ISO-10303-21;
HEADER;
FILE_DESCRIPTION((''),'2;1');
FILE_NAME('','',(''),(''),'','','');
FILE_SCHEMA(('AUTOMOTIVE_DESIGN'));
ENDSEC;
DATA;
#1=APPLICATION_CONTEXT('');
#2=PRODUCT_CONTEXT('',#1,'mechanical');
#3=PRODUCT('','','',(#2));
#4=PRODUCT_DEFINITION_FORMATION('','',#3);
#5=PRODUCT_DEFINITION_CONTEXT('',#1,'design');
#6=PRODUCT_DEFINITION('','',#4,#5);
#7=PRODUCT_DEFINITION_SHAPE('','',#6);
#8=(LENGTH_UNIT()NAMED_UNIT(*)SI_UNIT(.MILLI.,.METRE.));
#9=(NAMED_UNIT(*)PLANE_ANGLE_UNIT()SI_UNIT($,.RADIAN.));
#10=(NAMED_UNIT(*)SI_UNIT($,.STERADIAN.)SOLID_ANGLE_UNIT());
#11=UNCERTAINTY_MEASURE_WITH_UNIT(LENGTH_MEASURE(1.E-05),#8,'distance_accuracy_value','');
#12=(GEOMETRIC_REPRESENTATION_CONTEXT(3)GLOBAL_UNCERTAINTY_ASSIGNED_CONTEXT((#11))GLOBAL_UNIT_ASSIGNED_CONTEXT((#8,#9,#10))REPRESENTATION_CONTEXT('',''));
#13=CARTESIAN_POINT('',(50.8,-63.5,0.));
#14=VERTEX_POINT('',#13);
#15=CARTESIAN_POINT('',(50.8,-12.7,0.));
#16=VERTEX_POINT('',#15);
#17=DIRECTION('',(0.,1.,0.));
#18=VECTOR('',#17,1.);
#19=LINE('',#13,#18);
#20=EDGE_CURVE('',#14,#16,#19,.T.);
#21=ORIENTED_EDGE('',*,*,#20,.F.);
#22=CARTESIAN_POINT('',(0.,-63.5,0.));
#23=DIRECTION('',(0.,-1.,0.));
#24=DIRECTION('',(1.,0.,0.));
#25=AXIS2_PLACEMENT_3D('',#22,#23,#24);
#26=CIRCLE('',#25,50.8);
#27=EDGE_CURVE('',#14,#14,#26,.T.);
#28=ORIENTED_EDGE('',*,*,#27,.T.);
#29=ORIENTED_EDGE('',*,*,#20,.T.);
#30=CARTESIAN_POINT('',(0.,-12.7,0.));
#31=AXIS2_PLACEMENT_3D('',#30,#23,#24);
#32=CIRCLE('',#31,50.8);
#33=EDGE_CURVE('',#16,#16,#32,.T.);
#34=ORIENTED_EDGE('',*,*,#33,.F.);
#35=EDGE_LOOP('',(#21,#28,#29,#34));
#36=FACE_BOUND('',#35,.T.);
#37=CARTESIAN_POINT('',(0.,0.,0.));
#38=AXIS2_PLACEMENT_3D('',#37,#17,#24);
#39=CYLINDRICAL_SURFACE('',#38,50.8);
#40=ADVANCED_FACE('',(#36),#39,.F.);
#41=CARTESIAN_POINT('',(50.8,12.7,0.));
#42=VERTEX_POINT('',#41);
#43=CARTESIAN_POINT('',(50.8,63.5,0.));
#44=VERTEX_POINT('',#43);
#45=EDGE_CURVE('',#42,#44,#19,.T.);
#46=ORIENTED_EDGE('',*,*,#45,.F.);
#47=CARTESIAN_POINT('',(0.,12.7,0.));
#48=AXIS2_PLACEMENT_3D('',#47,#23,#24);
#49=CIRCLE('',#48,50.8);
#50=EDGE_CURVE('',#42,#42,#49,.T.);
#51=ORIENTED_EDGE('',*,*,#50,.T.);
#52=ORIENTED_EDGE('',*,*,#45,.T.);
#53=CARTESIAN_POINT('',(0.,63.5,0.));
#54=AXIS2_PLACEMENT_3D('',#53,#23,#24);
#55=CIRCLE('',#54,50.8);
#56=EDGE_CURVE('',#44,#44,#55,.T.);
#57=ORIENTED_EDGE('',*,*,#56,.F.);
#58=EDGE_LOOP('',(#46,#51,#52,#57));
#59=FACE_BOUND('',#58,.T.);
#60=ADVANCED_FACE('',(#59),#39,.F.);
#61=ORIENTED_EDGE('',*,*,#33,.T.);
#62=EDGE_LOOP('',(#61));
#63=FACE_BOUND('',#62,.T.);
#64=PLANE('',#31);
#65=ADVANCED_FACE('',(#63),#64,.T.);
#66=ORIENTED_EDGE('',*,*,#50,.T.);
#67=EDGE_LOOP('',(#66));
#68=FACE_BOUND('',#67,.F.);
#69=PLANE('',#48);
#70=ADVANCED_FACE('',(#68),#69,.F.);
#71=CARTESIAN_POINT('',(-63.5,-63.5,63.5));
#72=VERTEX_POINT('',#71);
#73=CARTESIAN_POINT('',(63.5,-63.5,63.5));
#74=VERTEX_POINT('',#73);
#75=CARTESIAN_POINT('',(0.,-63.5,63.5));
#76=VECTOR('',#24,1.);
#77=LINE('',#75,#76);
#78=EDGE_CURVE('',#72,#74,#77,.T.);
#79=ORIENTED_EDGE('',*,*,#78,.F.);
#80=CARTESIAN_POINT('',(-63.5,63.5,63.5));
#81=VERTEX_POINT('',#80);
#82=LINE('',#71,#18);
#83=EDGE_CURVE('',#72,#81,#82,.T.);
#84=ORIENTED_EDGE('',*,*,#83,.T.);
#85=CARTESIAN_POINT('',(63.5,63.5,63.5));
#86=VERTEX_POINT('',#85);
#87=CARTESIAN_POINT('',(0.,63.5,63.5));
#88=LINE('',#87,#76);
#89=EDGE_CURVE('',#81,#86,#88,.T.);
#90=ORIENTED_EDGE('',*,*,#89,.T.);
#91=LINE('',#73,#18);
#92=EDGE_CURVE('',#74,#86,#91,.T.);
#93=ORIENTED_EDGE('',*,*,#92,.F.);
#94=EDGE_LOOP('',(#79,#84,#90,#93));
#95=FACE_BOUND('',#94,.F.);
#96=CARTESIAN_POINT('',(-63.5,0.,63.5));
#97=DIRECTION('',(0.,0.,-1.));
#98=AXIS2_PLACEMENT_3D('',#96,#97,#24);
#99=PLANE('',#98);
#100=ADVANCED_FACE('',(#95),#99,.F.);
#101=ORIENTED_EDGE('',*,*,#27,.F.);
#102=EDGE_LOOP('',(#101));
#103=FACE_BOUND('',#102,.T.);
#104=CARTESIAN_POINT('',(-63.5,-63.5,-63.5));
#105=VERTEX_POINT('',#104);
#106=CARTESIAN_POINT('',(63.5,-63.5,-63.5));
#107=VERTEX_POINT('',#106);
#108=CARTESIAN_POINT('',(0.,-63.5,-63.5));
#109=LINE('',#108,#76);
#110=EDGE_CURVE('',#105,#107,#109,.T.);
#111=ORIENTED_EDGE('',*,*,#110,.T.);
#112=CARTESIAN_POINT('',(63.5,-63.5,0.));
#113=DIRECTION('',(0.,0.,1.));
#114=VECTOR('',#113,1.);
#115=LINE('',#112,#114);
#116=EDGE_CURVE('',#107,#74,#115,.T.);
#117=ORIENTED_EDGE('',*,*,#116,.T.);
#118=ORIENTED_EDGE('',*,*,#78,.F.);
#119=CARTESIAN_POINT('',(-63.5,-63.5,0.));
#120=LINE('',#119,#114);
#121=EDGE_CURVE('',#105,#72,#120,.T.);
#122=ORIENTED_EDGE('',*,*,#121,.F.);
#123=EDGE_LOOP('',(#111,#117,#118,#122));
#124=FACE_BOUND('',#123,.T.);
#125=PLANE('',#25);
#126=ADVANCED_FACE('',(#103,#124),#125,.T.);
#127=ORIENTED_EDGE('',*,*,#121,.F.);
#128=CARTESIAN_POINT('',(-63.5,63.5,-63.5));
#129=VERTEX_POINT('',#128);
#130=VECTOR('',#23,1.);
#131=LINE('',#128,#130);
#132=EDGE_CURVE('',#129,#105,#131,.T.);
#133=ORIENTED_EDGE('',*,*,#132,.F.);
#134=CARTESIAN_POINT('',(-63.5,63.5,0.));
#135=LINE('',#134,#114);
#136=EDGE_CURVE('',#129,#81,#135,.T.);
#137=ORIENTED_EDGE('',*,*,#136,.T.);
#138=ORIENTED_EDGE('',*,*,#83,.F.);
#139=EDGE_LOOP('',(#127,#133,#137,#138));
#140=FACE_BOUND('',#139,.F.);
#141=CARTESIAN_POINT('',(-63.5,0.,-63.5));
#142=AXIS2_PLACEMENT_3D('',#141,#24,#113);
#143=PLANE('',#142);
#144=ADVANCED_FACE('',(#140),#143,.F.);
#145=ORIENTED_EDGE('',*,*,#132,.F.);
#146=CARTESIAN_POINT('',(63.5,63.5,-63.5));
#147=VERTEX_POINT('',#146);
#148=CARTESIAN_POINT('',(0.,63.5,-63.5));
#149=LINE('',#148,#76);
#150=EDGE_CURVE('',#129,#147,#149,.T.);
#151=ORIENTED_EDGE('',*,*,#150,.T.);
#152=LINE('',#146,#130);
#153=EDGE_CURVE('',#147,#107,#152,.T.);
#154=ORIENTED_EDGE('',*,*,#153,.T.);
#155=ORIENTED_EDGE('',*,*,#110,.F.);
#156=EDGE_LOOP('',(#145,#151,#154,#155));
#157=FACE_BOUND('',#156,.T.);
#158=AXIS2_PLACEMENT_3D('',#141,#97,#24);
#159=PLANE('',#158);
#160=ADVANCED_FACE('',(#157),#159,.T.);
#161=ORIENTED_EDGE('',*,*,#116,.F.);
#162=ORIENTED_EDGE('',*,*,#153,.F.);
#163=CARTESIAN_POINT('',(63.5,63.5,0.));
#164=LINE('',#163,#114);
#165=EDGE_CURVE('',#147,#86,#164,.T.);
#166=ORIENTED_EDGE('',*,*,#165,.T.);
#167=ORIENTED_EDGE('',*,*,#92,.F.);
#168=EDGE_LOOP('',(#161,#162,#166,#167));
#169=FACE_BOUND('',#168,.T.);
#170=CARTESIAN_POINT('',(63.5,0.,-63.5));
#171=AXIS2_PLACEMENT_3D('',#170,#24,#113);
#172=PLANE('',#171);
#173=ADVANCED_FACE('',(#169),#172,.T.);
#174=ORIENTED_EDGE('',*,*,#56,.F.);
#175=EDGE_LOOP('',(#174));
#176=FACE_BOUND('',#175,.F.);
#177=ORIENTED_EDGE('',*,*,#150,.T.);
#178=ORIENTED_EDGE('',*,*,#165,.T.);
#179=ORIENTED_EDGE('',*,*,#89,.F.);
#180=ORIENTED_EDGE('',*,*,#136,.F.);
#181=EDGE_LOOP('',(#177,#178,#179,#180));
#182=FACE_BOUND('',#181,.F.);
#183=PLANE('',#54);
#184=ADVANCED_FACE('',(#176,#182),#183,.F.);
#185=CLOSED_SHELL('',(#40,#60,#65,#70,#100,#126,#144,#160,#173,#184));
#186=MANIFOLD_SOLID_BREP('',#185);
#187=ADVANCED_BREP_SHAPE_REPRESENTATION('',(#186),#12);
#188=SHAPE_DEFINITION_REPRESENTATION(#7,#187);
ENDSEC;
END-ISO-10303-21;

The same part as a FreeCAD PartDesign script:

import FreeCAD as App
import Part
import Sketcher

V = App.Vector
Q = App.Units.Quantity


def add_polygon(sketch, points):
    """Adds a closed chain of lines whose ends are joined by coincident constraints."""
    first, n = sketch.GeometryCount, len(points)
    for a, b in zip(points, points[1:] + points[:1]):
        sketch.addGeometry(Part.LineSegment(App.Vector(*a, 0), App.Vector(*b, 0)), False)
    for i in range(n):
        sketch.addConstraint(Sketcher.Constraint("Coincident", first + i, 2, first + (i + 1) % n, 1))

doc = App.newDocument("Part")
body = doc.addObject("PartDesign::Body", "Body")

sketch1 = body.newObject("Sketcher::SketchObject", "Sketch")
sketch1.AttachmentSupport = (doc.getObject("XZ_Plane"), [""])
sketch1.MapMode = "FlatFace"
add_polygon(sketch1, [(-63.5, 63.5), (-63.5, -63.5), (63.5, -63.5), (63.5, 63.5)])
sketch1.addGeometry(Part.Circle(V(0, 0, 0), V(0, 0, 1), 50.8), False)
sketch1.addConstraint([
    Sketcher.Constraint("Vertical", 0),
    Sketcher.Constraint("Horizontal", 1),
    Sketcher.Constraint("Vertical", 2),
    Sketcher.Constraint("Horizontal", 3),
    Sketcher.Constraint("Coincident", 4, 3, -1, 1),
    Sketcher.Constraint("Symmetric", 0, 2, 2, 2, -1, 1),
    Sketcher.Constraint("Equal", 3, 0),
    Sketcher.Constraint("Diameter", 4, Q("4 in")),
    Sketcher.Constraint("DistanceX", 1, 1, 1, 2, Q("5 in")),
])
pad1 = body.newObject("PartDesign::Pad", "Pad")
pad1.Profile = sketch1
pad1.Length = Q("5 in")
pad1.Midplane = True

sketch2 = body.newObject("Sketcher::SketchObject", "Sketch001")
sketch2.AttachmentSupport = (doc.getObject("XZ_Plane"), [""])
sketch2.MapMode = "FlatFace"
sketch2.addGeometry(Part.Circle(V(0, 0, 0), V(0, 0, 1), 50.8), False)
sketch2.addConstraint([
    Sketcher.Constraint("Coincident", 0, 3, -1, 1),
    Sketcher.Constraint("Diameter", 0, Q("4 in")),
])
pad2 = body.newObject("PartDesign::Pad", "Pad001")
pad2.Profile = sketch2
pad2.Length = Q("1 in")
pad2.Midplane = True

doc.recompute()
